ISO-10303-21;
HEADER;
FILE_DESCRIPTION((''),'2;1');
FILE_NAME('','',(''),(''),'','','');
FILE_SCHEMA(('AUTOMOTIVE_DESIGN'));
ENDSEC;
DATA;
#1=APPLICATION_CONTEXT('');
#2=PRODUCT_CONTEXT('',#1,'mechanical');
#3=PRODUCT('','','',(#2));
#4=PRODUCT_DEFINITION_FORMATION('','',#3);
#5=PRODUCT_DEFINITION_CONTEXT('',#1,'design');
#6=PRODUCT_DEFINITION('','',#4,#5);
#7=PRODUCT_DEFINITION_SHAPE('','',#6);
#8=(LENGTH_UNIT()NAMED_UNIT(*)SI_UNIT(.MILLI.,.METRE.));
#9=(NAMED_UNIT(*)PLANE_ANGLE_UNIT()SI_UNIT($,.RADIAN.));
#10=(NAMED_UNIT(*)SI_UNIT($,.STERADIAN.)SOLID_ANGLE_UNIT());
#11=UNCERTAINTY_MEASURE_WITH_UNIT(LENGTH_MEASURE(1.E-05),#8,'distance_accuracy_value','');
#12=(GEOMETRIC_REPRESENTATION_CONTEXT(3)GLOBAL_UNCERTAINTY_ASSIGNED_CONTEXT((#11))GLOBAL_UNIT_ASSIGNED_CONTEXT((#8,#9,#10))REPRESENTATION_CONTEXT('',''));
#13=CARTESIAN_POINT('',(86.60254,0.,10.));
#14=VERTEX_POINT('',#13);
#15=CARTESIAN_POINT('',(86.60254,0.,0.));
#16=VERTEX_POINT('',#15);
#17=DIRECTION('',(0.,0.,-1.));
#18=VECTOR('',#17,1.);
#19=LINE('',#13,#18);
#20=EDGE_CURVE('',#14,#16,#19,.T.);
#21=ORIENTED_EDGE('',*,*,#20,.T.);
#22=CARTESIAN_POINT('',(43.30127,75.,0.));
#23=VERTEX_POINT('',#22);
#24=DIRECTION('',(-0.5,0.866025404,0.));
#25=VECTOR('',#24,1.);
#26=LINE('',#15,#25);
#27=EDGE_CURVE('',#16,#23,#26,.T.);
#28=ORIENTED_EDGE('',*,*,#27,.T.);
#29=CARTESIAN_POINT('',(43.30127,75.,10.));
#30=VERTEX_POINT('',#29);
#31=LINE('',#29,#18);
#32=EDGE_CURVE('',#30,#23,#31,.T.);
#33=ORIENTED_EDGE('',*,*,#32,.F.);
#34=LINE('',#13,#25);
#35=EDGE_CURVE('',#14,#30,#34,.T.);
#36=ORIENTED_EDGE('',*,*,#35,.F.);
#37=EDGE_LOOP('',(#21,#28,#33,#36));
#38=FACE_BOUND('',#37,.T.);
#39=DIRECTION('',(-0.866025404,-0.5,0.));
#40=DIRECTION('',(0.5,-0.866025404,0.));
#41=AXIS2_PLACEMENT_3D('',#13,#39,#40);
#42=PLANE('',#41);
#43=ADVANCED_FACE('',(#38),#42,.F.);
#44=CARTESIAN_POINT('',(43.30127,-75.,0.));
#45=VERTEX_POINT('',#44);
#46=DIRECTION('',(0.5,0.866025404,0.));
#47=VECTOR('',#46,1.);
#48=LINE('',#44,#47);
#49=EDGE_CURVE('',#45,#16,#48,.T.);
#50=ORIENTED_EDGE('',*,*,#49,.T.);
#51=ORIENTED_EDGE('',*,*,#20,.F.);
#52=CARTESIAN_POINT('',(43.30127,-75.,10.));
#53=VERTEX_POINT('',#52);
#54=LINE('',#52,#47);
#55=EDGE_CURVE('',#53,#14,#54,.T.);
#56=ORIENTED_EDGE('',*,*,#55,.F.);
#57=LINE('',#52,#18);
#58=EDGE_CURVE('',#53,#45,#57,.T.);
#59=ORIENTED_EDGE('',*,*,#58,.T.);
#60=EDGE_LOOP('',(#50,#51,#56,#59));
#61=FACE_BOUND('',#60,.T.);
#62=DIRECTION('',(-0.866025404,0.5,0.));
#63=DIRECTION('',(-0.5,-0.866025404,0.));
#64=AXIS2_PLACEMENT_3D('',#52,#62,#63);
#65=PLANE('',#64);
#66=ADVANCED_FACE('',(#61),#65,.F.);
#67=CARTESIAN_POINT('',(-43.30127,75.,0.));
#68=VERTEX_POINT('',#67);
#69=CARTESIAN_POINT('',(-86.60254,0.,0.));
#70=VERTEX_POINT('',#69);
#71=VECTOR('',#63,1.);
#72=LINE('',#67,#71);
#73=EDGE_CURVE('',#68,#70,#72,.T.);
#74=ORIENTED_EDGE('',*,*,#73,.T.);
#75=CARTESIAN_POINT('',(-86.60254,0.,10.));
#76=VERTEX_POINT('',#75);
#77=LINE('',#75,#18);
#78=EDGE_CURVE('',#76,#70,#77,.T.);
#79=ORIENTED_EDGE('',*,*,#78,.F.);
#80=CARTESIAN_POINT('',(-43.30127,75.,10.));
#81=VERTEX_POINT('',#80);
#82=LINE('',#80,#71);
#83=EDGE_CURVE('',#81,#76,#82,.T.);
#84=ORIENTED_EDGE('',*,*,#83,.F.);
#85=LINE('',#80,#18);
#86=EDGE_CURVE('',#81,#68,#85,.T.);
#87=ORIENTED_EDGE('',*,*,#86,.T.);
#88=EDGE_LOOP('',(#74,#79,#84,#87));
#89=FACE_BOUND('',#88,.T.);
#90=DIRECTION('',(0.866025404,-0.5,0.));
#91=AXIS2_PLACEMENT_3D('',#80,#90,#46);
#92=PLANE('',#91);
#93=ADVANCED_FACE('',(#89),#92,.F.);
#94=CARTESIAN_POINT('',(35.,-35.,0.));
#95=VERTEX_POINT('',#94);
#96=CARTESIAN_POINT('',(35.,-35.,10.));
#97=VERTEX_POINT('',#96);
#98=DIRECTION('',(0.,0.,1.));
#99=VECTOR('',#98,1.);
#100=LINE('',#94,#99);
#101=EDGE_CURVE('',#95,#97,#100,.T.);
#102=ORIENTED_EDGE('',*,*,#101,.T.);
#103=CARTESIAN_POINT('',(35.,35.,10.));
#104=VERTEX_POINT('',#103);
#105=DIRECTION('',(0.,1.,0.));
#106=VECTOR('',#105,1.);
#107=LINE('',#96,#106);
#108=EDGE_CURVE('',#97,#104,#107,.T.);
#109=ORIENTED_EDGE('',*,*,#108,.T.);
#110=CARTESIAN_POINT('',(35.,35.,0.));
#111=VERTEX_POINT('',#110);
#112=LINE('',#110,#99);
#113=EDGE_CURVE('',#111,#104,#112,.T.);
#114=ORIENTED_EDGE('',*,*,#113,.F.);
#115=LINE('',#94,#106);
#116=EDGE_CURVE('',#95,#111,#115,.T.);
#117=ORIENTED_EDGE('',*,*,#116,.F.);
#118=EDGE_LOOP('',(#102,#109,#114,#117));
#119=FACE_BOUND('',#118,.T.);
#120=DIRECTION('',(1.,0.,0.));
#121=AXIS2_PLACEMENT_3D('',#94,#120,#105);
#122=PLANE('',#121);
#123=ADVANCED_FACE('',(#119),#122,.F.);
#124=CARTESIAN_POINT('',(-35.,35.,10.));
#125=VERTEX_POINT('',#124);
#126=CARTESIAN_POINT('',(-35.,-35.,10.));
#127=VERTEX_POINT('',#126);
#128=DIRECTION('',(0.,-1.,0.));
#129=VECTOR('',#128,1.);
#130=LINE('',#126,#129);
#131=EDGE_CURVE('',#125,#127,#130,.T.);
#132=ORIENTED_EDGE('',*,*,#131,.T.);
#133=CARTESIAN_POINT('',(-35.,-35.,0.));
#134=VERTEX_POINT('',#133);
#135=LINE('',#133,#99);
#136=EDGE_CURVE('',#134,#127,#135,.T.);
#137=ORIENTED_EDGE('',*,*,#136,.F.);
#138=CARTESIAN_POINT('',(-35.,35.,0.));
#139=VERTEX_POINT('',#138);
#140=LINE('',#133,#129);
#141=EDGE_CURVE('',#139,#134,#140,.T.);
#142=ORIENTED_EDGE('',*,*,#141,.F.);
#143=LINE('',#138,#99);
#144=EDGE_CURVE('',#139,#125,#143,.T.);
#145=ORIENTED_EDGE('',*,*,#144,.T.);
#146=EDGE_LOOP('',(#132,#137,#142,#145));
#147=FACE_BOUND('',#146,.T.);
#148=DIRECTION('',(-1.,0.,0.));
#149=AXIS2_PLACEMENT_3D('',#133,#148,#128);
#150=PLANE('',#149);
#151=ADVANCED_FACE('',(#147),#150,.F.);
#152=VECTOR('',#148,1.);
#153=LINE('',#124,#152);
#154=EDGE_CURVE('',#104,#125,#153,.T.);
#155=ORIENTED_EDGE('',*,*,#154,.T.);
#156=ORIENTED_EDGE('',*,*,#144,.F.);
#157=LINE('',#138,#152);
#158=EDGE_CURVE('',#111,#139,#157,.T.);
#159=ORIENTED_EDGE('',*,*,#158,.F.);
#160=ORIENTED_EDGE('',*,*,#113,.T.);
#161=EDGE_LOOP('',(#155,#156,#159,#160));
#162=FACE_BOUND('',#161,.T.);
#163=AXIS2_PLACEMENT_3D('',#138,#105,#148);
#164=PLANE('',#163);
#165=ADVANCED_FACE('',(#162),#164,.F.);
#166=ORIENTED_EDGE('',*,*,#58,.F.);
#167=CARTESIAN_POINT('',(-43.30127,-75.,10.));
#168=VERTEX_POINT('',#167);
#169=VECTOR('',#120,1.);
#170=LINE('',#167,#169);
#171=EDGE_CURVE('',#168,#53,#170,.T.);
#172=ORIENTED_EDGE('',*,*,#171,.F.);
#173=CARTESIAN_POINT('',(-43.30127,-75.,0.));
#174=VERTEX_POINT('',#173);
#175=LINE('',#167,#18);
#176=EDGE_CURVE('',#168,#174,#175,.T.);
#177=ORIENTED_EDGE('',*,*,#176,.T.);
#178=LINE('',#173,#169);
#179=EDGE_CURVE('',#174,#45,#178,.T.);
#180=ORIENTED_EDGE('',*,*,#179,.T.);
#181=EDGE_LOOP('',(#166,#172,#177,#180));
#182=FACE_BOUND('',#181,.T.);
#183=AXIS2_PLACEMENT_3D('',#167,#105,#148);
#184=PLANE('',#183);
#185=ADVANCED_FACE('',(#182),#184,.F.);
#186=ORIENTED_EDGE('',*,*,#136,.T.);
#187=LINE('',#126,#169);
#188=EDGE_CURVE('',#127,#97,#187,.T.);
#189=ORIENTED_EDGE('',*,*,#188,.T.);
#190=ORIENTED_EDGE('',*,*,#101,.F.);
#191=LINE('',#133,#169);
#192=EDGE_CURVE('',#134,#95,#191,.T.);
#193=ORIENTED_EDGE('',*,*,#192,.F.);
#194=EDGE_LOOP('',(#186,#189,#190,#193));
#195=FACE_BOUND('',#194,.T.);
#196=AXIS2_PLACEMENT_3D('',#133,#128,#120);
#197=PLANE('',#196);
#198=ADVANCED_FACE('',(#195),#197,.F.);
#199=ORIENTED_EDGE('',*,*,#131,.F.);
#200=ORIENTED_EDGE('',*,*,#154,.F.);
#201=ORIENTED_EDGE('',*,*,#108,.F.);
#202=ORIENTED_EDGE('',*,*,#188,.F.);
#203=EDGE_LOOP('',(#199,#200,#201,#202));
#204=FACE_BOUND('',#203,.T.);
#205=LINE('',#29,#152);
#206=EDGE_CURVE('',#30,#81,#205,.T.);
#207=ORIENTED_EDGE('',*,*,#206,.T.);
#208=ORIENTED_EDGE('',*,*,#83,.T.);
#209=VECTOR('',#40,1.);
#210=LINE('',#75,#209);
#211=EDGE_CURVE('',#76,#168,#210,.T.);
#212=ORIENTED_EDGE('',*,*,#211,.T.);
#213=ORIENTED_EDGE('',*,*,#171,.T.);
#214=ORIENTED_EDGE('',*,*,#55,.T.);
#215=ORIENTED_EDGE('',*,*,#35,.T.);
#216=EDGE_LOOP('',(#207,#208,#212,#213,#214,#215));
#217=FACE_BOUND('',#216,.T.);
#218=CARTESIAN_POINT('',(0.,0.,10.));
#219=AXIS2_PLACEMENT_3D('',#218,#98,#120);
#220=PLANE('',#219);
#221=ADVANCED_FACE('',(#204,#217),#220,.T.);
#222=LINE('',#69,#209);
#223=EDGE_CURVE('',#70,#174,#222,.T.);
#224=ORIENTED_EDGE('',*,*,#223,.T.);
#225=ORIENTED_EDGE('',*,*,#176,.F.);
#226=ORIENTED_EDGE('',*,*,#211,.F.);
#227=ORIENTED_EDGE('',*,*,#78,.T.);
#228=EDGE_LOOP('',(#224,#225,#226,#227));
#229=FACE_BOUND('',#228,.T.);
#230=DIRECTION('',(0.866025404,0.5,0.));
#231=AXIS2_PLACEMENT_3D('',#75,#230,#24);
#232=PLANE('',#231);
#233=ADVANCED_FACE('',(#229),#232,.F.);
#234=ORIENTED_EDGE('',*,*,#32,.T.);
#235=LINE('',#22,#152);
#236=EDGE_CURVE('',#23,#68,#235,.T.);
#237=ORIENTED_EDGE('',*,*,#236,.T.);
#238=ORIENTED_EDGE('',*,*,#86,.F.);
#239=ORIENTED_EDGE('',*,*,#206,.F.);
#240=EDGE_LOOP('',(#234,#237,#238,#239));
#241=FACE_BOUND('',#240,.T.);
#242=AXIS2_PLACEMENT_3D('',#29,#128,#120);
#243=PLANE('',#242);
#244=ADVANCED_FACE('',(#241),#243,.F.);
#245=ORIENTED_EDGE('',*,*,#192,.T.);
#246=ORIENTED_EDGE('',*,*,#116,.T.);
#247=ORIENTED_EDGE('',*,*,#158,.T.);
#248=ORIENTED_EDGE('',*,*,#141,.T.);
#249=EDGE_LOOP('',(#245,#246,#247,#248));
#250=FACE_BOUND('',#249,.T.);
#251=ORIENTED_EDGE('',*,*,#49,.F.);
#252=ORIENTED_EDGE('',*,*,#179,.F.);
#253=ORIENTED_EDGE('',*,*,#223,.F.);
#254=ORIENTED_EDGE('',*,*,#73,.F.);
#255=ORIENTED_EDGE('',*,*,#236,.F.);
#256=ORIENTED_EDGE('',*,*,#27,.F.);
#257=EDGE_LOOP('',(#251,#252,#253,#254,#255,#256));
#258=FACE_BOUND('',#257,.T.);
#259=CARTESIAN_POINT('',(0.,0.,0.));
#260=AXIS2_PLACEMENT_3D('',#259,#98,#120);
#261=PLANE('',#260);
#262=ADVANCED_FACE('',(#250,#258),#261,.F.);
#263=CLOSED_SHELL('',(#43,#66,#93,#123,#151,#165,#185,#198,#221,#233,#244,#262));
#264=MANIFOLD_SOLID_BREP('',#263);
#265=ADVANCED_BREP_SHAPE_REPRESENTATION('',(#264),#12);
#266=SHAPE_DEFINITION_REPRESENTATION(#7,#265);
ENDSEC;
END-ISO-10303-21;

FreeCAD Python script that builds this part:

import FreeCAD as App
import Part
import Sketcher
from FreeCAD import Vector
Q = App.Units.Quantity

doc = App.newDocument("Part")
body = doc.addObject("PartDesign::Body", "Body")

sketch1 = body.newObject("Sketcher::SketchObject", "Sketch")
sketch1.AttachmentSupport = (doc.getObject("XY_Plane"), [""])
sketch1.MapMode = "FlatFace"
sketch1.addGeometry(Part.LineSegment(Vector(87, 0, 0), Vector(43, 75, 0)), False)
sketch1.addGeometry(Part.LineSegment(Vector(43, 75, 0), Vector(-43, 75, 0)), False)
sketch1.addGeometry(Part.LineSegment(Vector(-43, 75, 0), Vector(-87, 0, 0)), False)
sketch1.addGeometry(Part.LineSegment(Vector(-87, 0, 0), Vector(-43, -75, 0)), False)
sketch1.addGeometry(Part.LineSegment(Vector(-43, -75, 0), Vector(43, -75, 0)), False)
sketch1.addGeometry(Part.LineSegment(Vector(43, -75, 0), Vector(87, 0, 0)), False)
sketch1.addConstraint(Sketcher.Constraint("Coincident", 0, 2, 1, 1))
sketch1.addConstraint(Sketcher.Constraint("Coincident", 1, 2, 2, 1))
sketch1.addConstraint(Sketcher.Constraint("Coincident", 2, 2, 3, 1))
sketch1.addConstraint(Sketcher.Constraint("Coincident", 3, 2, 4, 1))
sketch1.addConstraint(Sketcher.Constraint("Coincident", 4, 2, 5, 1))
sketch1.addConstraint(Sketcher.Constraint("Coincident", 5, 2, 0, 1))
sketch1.addConstraint(Sketcher.Constraint("Horizontal", 1))
sketch1.addConstraint(Sketcher.Constraint("Horizontal", 4))
sketch1.addConstraint(Sketcher.Constraint("Symmetric", 0, 2, 3, 2, -1, 1))
sketch1.addConstraint(Sketcher.Constraint("Symmetric", 2, 2, 5, 2, -1, 1))
sketch1.addConstraint(Sketcher.Constraint("PointOnObject", 2, 2, -1))
sketch1.addConstraint(Sketcher.Constraint("Parallel", 2, 5))
sketch1.addConstraint(Sketcher.Constraint("Vertical", 1, 2, 3, 2))
sketch1.addConstraint(Sketcher.Constraint("Angle", 0, Q("120 deg")))
sketch1.addConstraint(Sketcher.Constraint("DistanceY", -1, 1, 0, 2, 75.0))
sketch1.addConstraint(Sketcher.Constraint("DistanceX", 1, 2, 1, 1, 86.60254))
pad1 = body.newObject("PartDesign::Pad", "Pad")
pad1.Profile = sketch1
pad1.Length = 10

sketch2 = body.newObject("Sketcher::SketchObject", "Sketch001")
sketch2.AttachmentSupport = (doc.getObject("XY_Plane"), [""])
sketch2.MapMode = "FlatFace"
sketch2.AttachmentOffset = App.Placement(Vector(0, 0, 10), App.Rotation())
sketch2.addGeometry(Part.LineSegment(Vector(-35, 35, 0), Vector(-35, -35, 0)), False)
sketch2.addGeometry(Part.LineSegment(Vector(-35, -35, 0), Vector(35, -35, 0)), False)
sketch2.addGeometry(Part.LineSegment(Vector(35, -35, 0), Vector(35, 35, 0)), False)
sketch2.addGeometry(Part.LineSegment(Vector(35, 35, 0), Vector(-35, 35, 0)), False)
sketch2.addConstraint(Sketcher.Constraint("Coincident", 0, 2, 1, 1))
sketch2.addConstraint(Sketcher.Constraint("Coincident", 1, 2, 2, 1))
sketch2.addConstraint(Sketcher.Constraint("Coincident", 2, 2, 3, 1))
sketch2.addConstraint(Sketcher.Constraint("Coincident", 3, 2, 0, 1))
sketch2.addConstraint(Sketcher.Constraint("Vertical", 0))
sketch2.addConstraint(Sketcher.Constraint("Horizontal", 1))
sketch2.addConstraint(Sketcher.Constraint("Vertical", 2))
sketch2.addConstraint(Sketcher.Constraint("Horizontal", 3))
sketch2.addConstraint(Sketcher.Constraint("Symmetric", 0, 2, 2, 2, -1, 1))
sketch2.addConstraint(Sketcher.Constraint("Equal", 3, 0))
sketch2.addConstraint(Sketcher.Constraint("DistanceX", 1, 1, 1, 2, 70.0))
pocket1 = body.newObject("PartDesign::Pocket", "Pocket")
pocket1.Profile = sketch2
pocket1.Type = "ThroughAll"

doc.recompute()
